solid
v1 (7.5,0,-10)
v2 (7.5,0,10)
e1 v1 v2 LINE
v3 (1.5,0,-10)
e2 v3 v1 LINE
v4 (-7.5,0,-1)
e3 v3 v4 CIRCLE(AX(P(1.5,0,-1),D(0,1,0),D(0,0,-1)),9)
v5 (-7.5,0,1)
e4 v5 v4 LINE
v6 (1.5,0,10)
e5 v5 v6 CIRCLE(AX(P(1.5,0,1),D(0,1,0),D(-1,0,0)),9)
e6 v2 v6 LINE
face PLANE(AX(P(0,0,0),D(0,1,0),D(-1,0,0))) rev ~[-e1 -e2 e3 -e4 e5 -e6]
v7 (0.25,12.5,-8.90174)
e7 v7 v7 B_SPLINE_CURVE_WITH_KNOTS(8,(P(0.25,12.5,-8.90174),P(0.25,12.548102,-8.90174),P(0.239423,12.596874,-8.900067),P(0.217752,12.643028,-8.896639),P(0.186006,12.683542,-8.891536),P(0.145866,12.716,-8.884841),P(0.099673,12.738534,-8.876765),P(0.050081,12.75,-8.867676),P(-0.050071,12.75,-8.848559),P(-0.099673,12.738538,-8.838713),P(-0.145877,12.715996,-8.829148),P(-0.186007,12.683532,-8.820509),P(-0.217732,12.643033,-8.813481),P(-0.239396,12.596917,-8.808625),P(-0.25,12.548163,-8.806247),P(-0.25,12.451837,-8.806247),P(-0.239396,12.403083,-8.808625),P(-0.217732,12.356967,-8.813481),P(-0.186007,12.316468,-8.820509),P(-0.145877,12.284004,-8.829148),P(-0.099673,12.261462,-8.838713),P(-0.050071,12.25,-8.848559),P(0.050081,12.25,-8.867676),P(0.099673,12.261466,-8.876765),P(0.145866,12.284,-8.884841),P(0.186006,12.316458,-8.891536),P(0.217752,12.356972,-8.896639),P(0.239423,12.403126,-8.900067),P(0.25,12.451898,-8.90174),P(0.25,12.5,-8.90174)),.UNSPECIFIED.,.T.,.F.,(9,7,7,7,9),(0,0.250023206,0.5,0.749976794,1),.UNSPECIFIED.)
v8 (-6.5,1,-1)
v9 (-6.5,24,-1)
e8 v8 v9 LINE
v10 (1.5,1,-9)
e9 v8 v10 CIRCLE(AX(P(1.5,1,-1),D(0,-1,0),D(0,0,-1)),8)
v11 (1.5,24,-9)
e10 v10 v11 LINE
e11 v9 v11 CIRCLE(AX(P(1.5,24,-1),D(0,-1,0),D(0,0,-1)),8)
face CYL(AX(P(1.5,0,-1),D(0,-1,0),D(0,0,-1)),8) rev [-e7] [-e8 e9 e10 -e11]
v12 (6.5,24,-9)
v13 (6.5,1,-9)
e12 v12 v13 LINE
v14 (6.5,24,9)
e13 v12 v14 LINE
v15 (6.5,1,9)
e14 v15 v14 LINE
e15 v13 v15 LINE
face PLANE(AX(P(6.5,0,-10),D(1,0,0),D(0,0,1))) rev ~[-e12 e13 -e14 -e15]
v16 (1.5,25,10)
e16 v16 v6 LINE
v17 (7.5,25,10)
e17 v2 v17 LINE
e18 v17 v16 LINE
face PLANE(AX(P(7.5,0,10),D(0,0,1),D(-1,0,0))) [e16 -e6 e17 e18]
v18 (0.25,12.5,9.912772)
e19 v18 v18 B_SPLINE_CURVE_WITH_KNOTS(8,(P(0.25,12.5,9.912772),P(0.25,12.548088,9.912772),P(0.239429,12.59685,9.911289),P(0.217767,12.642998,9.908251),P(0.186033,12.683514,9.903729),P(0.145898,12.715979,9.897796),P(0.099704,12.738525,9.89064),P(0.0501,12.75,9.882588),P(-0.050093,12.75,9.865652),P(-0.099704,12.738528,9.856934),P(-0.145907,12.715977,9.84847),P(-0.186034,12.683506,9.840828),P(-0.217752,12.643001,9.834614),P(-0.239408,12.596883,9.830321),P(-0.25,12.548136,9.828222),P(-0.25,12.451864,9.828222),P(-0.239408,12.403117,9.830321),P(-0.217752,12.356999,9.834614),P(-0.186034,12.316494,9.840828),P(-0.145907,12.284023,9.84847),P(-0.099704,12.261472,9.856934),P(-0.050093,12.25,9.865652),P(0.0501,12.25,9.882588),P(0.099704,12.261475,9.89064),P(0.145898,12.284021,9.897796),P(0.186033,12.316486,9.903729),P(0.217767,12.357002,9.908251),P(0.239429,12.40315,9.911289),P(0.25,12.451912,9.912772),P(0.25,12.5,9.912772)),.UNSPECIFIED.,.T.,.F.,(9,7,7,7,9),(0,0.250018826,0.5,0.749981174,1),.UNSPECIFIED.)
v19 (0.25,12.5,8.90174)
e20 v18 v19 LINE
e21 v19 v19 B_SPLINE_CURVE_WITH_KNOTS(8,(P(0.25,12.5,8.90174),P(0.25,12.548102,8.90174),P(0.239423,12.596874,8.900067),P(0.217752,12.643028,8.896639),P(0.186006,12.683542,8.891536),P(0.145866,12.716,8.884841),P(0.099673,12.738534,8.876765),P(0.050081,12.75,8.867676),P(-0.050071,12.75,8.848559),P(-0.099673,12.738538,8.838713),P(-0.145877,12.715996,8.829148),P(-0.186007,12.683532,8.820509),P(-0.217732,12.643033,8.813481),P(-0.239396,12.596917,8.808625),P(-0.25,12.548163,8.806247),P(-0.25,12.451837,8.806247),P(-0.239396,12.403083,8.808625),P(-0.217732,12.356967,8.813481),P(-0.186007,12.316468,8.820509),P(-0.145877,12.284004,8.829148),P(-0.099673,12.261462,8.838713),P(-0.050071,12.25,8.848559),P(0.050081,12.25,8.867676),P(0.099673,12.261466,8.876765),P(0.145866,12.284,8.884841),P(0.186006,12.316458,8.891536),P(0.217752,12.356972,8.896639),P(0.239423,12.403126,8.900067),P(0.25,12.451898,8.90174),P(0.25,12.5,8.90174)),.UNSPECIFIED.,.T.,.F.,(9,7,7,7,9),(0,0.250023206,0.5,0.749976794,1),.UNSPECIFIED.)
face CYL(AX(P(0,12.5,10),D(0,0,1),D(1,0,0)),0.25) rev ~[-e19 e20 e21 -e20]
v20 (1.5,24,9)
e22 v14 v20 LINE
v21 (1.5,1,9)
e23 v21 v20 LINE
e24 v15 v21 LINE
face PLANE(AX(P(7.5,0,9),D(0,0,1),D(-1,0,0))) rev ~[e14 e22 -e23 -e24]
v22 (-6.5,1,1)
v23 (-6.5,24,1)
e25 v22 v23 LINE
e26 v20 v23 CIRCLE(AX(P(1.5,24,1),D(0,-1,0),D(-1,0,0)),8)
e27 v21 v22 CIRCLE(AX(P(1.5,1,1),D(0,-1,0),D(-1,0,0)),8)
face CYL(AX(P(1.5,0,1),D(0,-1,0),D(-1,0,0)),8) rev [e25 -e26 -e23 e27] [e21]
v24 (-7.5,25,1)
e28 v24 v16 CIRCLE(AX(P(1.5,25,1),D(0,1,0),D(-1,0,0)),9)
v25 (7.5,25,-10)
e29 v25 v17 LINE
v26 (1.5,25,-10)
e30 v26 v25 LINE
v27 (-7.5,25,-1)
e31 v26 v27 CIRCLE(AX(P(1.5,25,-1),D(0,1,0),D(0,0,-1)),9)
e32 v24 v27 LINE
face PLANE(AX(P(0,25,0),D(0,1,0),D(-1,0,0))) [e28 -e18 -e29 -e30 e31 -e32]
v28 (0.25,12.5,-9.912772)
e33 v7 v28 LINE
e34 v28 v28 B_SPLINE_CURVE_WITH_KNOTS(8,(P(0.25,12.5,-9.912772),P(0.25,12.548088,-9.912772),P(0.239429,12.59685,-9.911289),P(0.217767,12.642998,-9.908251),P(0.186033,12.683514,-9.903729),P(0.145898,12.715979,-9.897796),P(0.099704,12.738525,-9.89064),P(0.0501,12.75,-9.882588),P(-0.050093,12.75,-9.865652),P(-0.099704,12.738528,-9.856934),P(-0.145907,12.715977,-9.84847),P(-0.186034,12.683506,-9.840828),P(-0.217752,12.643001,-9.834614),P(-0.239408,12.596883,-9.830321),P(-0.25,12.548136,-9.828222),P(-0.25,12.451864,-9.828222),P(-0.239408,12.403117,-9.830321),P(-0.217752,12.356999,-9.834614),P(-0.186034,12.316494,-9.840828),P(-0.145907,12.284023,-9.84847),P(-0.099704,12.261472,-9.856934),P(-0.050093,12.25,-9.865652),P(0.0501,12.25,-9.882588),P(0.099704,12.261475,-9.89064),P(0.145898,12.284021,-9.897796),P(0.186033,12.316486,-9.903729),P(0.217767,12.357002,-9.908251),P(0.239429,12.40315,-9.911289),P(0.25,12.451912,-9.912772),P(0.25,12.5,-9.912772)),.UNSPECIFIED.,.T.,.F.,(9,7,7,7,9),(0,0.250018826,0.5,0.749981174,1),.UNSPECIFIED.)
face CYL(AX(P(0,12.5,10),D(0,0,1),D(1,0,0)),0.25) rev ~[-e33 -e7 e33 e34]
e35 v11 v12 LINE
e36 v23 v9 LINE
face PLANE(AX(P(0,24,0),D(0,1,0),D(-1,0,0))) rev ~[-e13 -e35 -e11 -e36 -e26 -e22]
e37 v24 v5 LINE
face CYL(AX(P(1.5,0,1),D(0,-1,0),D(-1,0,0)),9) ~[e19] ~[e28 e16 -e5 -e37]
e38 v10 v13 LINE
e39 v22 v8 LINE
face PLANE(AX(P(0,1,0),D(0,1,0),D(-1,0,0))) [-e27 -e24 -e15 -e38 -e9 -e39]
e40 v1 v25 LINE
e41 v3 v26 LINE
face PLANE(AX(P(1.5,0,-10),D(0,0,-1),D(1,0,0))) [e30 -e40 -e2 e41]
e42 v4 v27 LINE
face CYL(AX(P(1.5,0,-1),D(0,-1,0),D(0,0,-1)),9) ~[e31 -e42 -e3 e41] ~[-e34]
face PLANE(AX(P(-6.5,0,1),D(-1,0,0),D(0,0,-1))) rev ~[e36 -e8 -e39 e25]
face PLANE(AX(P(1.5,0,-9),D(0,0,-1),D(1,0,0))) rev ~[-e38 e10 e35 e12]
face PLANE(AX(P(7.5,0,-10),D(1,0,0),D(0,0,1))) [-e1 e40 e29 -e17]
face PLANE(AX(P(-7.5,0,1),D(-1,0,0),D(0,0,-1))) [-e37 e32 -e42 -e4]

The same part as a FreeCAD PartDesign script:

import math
import FreeCAD as App
import Part
import Sketcher
from FreeCAD import Vector
Q = App.Units.Quantity


def faces_at(feature, points):
    """Names of the faces that lie closest to the given points."""
    faces = feature.Shape.Faces
    near = lambda p: min(range(len(faces)), key=lambda i: faces[i].distToShape(Part.Vertex(*p))[0])
    return sorted({f"Face{near(p) + 1}" for p in points})

doc = App.newDocument("Part")
params = doc.addObject("Spreadsheet::Sheet", "Params")
for row, (alias, value) in enumerate([
    ("sketch1_radius", "9 mm"),
    ("sketch1_height", "20 mm"),
    ("pad1_length", "25 mm"),
    ("thickness_wall", "1 mm"),
    ("sketch2_radius", "9 mm"),
    ("sketch2_height", "20 mm"),
    ("pad2_length", "1 mm"),
    ("sketch3_diameter", "0.5 mm"),
], start=1):
    params.set(f"A{row}", alias)
    params.set(f"B{row}", "=" + value)
    params.setAlias(f"B{row}", alias)

body = doc.addObject("PartDesign::Body", "Body")

# Sketch on XZ plane
sketch1 = doc.addObject("Sketcher::SketchObject", "Sketch")
body.addObject(sketch1)
sketch1.AttachmentSupport = (doc.XZ_Plane, [""])
sketch1.MapMode = "FlatFace"
sketch1.addGeometry(Part.LineSegment(Vector(1.5, 10, 0), Vector(7.5, 10, 0)), False)
sketch1.addGeometry(Part.LineSegment(Vector(7.5, 10, 0), Vector(7.5, -10, 0)), False)
sketch1.addGeometry(Part.LineSegment(Vector(7.5, -10, 0), Vector(1.5, -10, 0)), False)
sketch1.addGeometry(Part.ArcOfCircle(Part.Circle(Vector(1.5, -1, 0), Vector(0, 0, 1), 9), math.radians(180), math.radians(270)), False)
sketch1.addGeometry(Part.LineSegment(Vector(-7.5, -1, 0), Vector(-7.5, 1, 0)), False)
sketch1.addGeometry(Part.ArcOfCircle(Part.Circle(Vector(1.5, 1, 0), Vector(0, 0, 1), 9), math.radians(90), math.radians(180)), False)
sketch1.addConstraint(Sketcher.Constraint("Coincident", 0, 2, 1, 1))
sketch1.addConstraint(Sketcher.Constraint("Coincident", 1, 2, 2, 1))
sketch1.addConstraint(Sketcher.Constraint("Tangent", 2, 2, 3, 2))
sketch1.addConstraint(Sketcher.Constraint("Tangent", 3, 1, 4, 1))
sketch1.addConstraint(Sketcher.Constraint("Tangent", 4, 2, 5, 2))
sketch1.addConstraint(Sketcher.Constraint("Tangent", 5, 1, 0, 1))
sketch1.addConstraint(Sketcher.Constraint("Horizontal", 0))
sketch1.addConstraint(Sketcher.Constraint("Vertical", 1))
sketch1.addConstraint(Sketcher.Constraint("Horizontal", 2))
sketch1.addConstraint(Sketcher.Constraint("Vertical", 4))
sketch1.addConstraint(Sketcher.Constraint("Equal", 3, 5))
sketch1.addConstraint(Sketcher.Constraint("Radius", 3, Q("9 mm")))
sketch1.addConstraint(Sketcher.Constraint("DistanceY", 1, 2, 1, 1, Q("20 mm")))
sketch1.addConstraint(Sketcher.Constraint("DistanceX", 3, 1, 1, 2, Q("15 mm")))
sketch1.addConstraint(Sketcher.Constraint("DistanceY", 3, 3, -1, 1, Q("1 mm")))
sketch1.addConstraint(Sketcher.Constraint("DistanceX", -1, 1, 3, 3, Q("1.5 mm")))
sketch1.setExpression("Constraints[11]", "Params.sketch1_radius")
sketch1.setExpression("Constraints[12]", "Params.sketch1_height")
pad1 = doc.addObject("PartDesign::Pad", "Pad")
body.addObject(pad1)
pad1.Profile = sketch1
pad1.setExpression("Length", "Params.pad1_length")
pad1.Reversed = True
doc.recompute()

thickness = doc.addObject("PartDesign::Thickness", "Thickness")
body.addObject(thickness)
thickness.Base = (pad1, faces_at(pad1, [(-1.5, 0, 0.333)]))
thickness.setExpression("Value", "Params.thickness_wall")
thickness.Reversed = True
thickness.Join = "Intersection"

# Sketch on XZ plane
sketch2 = doc.addObject("Sketcher::SketchObject", "Sketch001")
body.addObject(sketch2)
sketch2.AttachmentSupport = (doc.XZ_Plane, [""])
sketch2.MapMode = "FlatFace"
sketch2.addGeometry(Part.LineSegment(Vector(1.5, 10, 0), Vector(7.5, 10, 0)), False)
sketch2.addGeometry(Part.LineSegment(Vector(7.5, 10, 0), Vector(7.5, -10, 0)), False)
sketch2.addGeometry(Part.LineSegment(Vector(7.5, -10, 0), Vector(1.5, -10, 0)), False)
sketch2.addGeometry(Part.ArcOfCircle(Part.Circle(Vector(1.5, -1, 0), Vector(0, 0, 1), 9), math.radians(180), math.radians(270)), False)
sketch2.addGeometry(Part.LineSegment(Vector(-7.5, -1, 0), Vector(-7.5, 1, 0)), False)
sketch2.addGeometry(Part.ArcOfCircle(Part.Circle(Vector(1.5, 1, 0), Vector(0, 0, 1), 9), math.radians(90), math.radians(180)), False)
sketch2.addConstraint(Sketcher.Constraint("Coincident", 0, 2, 1, 1))
sketch2.addConstraint(Sketcher.Constraint("Coincident", 1, 2, 2, 1))
sketch2.addConstraint(Sketcher.Constraint("Tangent", 2, 2, 3, 2))
sketch2.addConstraint(Sketcher.Constraint("Tangent", 3, 1, 4, 1))
sketch2.addConstraint(Sketcher.Constraint("Tangent", 4, 2, 5, 2))
sketch2.addConstraint(Sketcher.Constraint("Tangent", 5, 1, 0, 1))
sketch2.addConstraint(Sketcher.Constraint("Horizontal", 0))
sketch2.addConstraint(Sketcher.Constraint("Vertical", 1))
sketch2.addConstraint(Sketcher.Constraint("Horizontal", 2))
sketch2.addConstraint(Sketcher.Constraint("Vertical", 4))
sketch2.addConstraint(Sketcher.Constraint("Equal", 3, 5))
sketch2.addConstraint(Sketcher.Constraint("Radius", 3, Q("9 mm")))
sketch2.addConstraint(Sketcher.Constraint("DistanceY", 1, 2, 1, 1, Q("20 mm")))
sketch2.addConstraint(Sketcher.Constraint("DistanceX", 3, 1, 1, 2, Q("15 mm")))
sketch2.addConstraint(Sketcher.Constraint("DistanceY", 3, 3, -1, 1, Q("1 mm")))
sketch2.addConstraint(Sketcher.Constraint("DistanceX", -1, 1, 3, 3, Q("1.5 mm")))
sketch2.setExpression("Constraints[11]", "Params.sketch2_radius")
sketch2.setExpression("Constraints[12]", "Params.sketch2_height")
pad2 = doc.addObject("PartDesign::Pad", "Pad001")
body.addObject(pad2)
pad2.Profile = sketch2
pad2.setExpression("Length", "Params.pad2_length")
pad2.Reversed = True

# Sketch on XY plane
sketch3 = doc.addObject("Sketcher::SketchObject", "Sketch002")
body.addObject(sketch3)
sketch3.AttachmentSupport = (doc.XY_Plane, [""])
sketch3.MapMode = "FlatFace"
sketch3.AttachmentOffset = App.Placement(Vector(0, 0, 10), App.Rotation())
sketch3.addGeometry(Part.Circle(Vector(0, 12.5, 0), Vector(0, 0, 1), 0.25), False)
sketch3.addConstraint(Sketcher.Constraint("PointOnObject", 0, 3, -2))
sketch3.addConstraint(Sketcher.Constraint("Diameter", 0, Q("0.5 mm")))
sketch3.addConstraint(Sketcher.Constraint("DistanceY", -1, 1, 0, 3, Q("12.5 mm")))
sketch3.setExpression("Constraints[1]", "Params.sketch3_diameter")
pocket1 = doc.addObject("PartDesign::Pocket", "Pocket")
body.addObject(pocket1)
pocket1.Profile = sketch3
pocket1.Type = "ThroughAll"

doc.recompute()
